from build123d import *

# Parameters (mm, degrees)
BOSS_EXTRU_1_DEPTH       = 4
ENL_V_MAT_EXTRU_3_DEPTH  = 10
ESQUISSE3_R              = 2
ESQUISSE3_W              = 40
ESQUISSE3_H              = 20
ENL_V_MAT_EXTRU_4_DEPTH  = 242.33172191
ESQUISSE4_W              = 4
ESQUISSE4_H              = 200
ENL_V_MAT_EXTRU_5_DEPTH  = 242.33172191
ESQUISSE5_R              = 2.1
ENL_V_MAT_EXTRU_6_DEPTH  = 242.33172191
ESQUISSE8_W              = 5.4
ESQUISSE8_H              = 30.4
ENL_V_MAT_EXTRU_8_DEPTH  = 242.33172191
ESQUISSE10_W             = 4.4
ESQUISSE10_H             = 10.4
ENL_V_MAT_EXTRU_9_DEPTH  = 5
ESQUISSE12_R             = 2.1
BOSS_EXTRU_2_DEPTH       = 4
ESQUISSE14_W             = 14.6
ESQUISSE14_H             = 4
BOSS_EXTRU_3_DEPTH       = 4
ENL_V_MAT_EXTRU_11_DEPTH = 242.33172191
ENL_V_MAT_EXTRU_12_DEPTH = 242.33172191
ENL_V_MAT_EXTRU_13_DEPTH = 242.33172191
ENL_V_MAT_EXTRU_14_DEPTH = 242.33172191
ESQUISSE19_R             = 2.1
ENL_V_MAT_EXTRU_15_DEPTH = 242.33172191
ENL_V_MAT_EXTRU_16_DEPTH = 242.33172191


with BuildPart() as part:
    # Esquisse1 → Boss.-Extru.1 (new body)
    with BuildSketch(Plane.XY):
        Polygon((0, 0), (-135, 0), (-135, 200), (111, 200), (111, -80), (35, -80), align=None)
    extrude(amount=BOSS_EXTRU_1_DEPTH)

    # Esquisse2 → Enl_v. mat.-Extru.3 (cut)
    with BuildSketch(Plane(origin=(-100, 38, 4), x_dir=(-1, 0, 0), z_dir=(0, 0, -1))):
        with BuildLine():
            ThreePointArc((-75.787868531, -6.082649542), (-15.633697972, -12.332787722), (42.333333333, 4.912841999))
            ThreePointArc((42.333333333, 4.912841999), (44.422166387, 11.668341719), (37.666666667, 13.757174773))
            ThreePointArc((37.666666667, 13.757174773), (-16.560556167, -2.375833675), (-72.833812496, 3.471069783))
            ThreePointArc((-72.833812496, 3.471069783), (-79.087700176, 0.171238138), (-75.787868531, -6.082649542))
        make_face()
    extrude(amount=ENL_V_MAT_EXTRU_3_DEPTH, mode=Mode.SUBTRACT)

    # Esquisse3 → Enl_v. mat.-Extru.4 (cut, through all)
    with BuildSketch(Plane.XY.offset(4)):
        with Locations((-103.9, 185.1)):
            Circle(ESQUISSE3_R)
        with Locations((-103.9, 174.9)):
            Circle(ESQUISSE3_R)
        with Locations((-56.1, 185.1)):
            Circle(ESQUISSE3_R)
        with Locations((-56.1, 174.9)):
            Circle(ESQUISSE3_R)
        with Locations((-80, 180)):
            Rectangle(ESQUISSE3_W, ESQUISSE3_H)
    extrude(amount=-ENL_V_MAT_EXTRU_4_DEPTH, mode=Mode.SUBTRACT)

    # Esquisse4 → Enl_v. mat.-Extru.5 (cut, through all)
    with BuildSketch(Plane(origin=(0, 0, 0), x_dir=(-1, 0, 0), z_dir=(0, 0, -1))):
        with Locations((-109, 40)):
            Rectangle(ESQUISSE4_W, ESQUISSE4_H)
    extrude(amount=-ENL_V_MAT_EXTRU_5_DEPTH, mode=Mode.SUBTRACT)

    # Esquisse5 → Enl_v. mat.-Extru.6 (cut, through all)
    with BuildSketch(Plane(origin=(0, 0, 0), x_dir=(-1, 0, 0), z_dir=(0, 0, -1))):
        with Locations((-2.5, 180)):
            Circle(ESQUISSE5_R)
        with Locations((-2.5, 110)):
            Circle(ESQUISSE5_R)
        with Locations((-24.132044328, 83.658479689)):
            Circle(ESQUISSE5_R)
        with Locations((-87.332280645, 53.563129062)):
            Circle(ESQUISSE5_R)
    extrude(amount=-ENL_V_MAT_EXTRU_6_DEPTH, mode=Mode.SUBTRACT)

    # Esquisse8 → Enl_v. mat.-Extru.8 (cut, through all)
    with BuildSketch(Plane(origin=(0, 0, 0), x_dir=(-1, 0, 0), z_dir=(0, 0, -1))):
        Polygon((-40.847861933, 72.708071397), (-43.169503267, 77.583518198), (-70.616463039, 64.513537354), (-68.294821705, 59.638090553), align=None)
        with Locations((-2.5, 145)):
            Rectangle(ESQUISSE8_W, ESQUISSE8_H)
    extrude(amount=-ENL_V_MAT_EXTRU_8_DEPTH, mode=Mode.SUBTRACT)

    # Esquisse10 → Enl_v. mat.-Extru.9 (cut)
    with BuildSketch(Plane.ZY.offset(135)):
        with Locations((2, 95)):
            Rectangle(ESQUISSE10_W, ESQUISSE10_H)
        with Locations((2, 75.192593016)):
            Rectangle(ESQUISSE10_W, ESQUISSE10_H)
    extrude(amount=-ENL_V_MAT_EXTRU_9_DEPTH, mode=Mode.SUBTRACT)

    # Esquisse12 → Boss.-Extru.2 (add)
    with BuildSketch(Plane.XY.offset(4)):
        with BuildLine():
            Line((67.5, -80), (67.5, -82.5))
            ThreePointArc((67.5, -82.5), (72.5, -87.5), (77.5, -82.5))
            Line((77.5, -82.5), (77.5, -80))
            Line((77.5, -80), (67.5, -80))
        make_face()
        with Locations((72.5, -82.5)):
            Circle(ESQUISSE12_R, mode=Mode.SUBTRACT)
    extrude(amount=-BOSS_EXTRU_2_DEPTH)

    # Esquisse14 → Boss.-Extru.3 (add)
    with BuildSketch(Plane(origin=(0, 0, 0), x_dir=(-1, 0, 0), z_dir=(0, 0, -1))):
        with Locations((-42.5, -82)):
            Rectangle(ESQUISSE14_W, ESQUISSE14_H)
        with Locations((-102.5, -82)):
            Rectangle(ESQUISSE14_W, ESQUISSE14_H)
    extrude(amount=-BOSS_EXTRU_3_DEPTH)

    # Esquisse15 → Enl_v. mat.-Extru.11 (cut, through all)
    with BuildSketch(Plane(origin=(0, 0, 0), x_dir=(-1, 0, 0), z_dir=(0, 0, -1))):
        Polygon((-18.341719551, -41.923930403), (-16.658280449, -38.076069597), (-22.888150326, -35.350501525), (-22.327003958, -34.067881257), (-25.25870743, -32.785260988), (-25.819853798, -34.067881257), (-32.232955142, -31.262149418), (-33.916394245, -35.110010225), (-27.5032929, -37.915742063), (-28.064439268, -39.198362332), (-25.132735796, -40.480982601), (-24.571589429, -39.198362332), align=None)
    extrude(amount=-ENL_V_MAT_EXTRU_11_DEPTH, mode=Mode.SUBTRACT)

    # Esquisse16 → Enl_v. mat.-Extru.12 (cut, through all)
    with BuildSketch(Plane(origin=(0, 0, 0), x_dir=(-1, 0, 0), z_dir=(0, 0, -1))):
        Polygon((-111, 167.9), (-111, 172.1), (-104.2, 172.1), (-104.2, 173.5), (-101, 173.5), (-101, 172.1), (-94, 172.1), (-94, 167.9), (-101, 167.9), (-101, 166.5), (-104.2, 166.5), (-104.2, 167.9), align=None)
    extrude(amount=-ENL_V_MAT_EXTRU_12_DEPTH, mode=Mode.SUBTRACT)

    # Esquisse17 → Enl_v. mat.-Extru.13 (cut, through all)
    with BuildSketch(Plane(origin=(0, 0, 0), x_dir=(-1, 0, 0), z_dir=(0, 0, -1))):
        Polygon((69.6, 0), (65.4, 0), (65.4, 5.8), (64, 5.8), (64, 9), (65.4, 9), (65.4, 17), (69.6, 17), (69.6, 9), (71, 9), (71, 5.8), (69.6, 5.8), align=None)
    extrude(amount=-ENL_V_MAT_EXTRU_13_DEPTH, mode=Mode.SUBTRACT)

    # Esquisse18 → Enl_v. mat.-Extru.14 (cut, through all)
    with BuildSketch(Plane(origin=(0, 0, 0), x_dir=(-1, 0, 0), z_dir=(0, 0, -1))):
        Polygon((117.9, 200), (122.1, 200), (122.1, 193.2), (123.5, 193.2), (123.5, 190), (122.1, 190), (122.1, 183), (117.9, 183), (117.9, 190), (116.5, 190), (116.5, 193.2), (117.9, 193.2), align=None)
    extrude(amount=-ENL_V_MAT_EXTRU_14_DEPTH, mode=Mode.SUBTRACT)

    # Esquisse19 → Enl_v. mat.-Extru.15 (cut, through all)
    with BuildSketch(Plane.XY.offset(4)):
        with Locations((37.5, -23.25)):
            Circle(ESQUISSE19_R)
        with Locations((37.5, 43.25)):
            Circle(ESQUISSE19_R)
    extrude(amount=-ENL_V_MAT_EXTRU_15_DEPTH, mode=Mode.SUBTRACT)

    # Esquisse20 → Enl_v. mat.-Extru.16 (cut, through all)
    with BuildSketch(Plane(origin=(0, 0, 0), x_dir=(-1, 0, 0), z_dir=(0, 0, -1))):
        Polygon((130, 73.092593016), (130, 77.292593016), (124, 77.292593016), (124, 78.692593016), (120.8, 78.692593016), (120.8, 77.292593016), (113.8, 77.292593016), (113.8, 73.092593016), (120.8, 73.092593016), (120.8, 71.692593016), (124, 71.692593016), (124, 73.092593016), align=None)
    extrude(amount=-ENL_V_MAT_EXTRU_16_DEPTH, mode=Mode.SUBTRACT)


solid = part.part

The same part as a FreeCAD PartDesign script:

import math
import FreeCAD as App
import Part
import Sketcher

doc = App.newDocument("Part")
body = doc.addObject("PartDesign::Body", "Body")

# Sketch on XY plane
sketch1 = body.newObject("Sketcher::SketchObject", "Sketch")
sketch1.AttachmentSupport = (doc.getObject("XY_Plane"), [""])
sketch1.MapMode = "FlatFace"
sketch1.addGeometry(Part.LineSegment(App.Vector(-135, 0, 0), App.Vector(0, 0, 0)), False)
sketch1.addGeometry(Part.LineSegment(App.Vector(0, 0, 0), App.Vector(35, -80, 0)), False)
sketch1.addGeometry(Part.LineSegment(App.Vector(35, -80, 0), App.Vector(111, -80, 0)), False)
sketch1.addGeometry(Part.LineSegment(App.Vector(111, -80, 0), App.Vector(111, 200, 0)), False)
sketch1.addGeometry(Part.LineSegment(App.Vector(111, 200, 0), App.Vector(-135, 200, 0)), False)
sketch1.addGeometry(Part.LineSegment(App.Vector(-135, 200, 0), App.Vector(-135, 0, 0)), False)
sketch1.addConstraint(Sketcher.Constraint("Coincident", 0, 2, 1, 1))
sketch1.addConstraint(Sketcher.Constraint("Coincident", 1, 2, 2, 1))
sketch1.addConstraint(Sketcher.Constraint("Coincident", 2, 2, 3, 1))
sketch1.addConstraint(Sketcher.Constraint("Coincident", 3, 2, 4, 1))
sketch1.addConstraint(Sketcher.Constraint("Coincident", 4, 2, 5, 1))
sketch1.addConstraint(Sketcher.Constraint("Coincident", 5, 2, 0, 1))
sketch1.addConstraint(Sketcher.Constraint("Horizontal", 0))
sketch1.addConstraint(Sketcher.Constraint("Horizontal", 2))
sketch1.addConstraint(Sketcher.Constraint("Vertical", 3))
sketch1.addConstraint(Sketcher.Constraint("Horizontal", 4))
sketch1.addConstraint(Sketcher.Constraint("Vertical", 5))
sketch1.addConstraint(Sketcher.Constraint("Coincident", 0, 2, -1, 1))
sketch1.addConstraint(Sketcher.Constraint("DistanceX", 0, 1, 0, 2, 135.0))
sketch1.addConstraint(Sketcher.Constraint("DistanceX", 2, 1, 2, 2, 76.0))
sketch1.addConstraint(Sketcher.Constraint("DistanceX", 4, 2, 4, 1, 246.0))
sketch1.addConstraint(Sketcher.Constraint("DistanceY", 3, 1, 3, 2, 280.0))
sketch1.addConstraint(Sketcher.Constraint("DistanceY", 5, 2, 5, 1, 200.0))
pad1 = body.newObject("PartDesign::Pad", "Pad")
pad1.Profile = sketch1
pad1.Length = 4

# Sketch on XY plane
sketch2 = body.newObject("Sketcher::SketchObject", "Sketch001")
sketch2.AttachmentSupport = (doc.getObject("XY_Plane"), [""])
sketch2.MapMode = "FlatFace"
sketch2.AttachmentOffset = App.Placement(App.Vector(0, 0, 4), App.Rotation())
sketch2.addGeometry(Part.ArcOfCircle(Part.Circle(App.Vector(-70, 180, 0), App.Vector(0, 0, 1), 155), math.radians(-118), math.radians(-73)), False)
sketch2.addGeometry(Part.ArcOfCircle(Part.Circle(App.Vector(-140, 47, 0), App.Vector(0, 0, 1), 5), math.radians(62), math.radians(242)), False)
sketch2.addGeometry(Part.ArcOfCircle(Part.Circle(App.Vector(-70, 180, 0), App.Vector(0, 0, 1), 145), math.radians(-118), math.radians(-73)), False)
sketch2.addGeometry(Part.ArcOfCircle(Part.Circle(App.Vector(-26, 37, 0), App.Vector(0, 0, 1), 5), math.radians(-73), math.radians(107)), False)
sketch2.addConstraint(Sketcher.Constraint("Tangent", 0, 1, 1, 2))
sketch2.addConstraint(Sketcher.Constraint("Tangent", 1, 1, 2, 1))
sketch2.addConstraint(Sketcher.Constraint("Tangent", 2, 2, 3, 2))
sketch2.addConstraint(Sketcher.Constraint("Tangent", 3, 1, 0, 2))
sketch2.addConstraint(Sketcher.Constraint("Coincident", 2, 3, 0, 3))
sketch2.addConstraint(Sketcher.Constraint("Radius", 0, 155.0))
sketch2.addConstraint(Sketcher.Constraint("Radius", 1, 5.0))
sketch2.addConstraint(Sketcher.Constraint("DistanceX", 0, 3, -1, 1, 70.0))
sketch2.addConstraint(Sketcher.Constraint("DistanceY", -1, 1, 0, 3, 180.0))
sketch2.addConstraint(Sketcher.Constraint("DistanceX", 1, 3, -1, 1, 140.0))
sketch2.addConstraint(Sketcher.Constraint("DistanceY", 3, 3, 1, 3, 10.640798))
pocket1 = body.newObject("PartDesign::Pocket", "Pocket")
pocket1.Profile = sketch2
pocket1.Length = 10

# Sketch on XY plane
sketch3 = body.newObject("Sketcher::SketchObject", "Sketch002")
sketch3.AttachmentSupport = (doc.getObject("XY_Plane"), [""])
sketch3.MapMode = "FlatFace"
sketch3.AttachmentOffset = App.Placement(App.Vector(0, 0, 4), App.Rotation())
sketch3.addGeometry(Part.Circle(App.Vector(-103.9, 185.1, 0), App.Vector(0, 0, 1), 2), False)
sketch3.addGeometry(Part.Circle(App.Vector(-103.9, 174.9, 0), App.Vector(0, 0, 1), 2), False)
sketch3.addGeometry(Part.Circle(App.Vector(-56.1, 185.1, 0), App.Vector(0, 0, 1), 2), False)
sketch3.addGeometry(Part.Circle(App.Vector(-56.1, 174.9, 0), App.Vector(0, 0, 1), 2), False)
sketch3.addGeometry(Part.LineSegment(App.Vector(-100, 190, 0), App.Vector(-100, 170, 0)), False)
sketch3.addGeometry(Part.LineSegment(App.Vector(-100, 170, 0), App.Vector(-60, 170, 0)), False)
sketch3.addGeometry(Part.LineSegment(App.Vector(-60, 170, 0), App.Vector(-60, 190, 0)), False)
sketch3.addGeometry(Part.LineSegment(App.Vector(-60, 190, 0), App.Vector(-100, 190, 0)), False)
sketch3.addConstraint(Sketcher.Constraint("Coincident", 4, 2, 5, 1))
sketch3.addConstraint(Sketcher.Constraint("Coincident", 5, 2, 6, 1))
sketch3.addConstraint(Sketcher.Constraint("Coincident", 6, 2, 7, 1))
sketch3.addConstraint(Sketcher.Constraint("Coincident", 7, 2, 4, 1))
sketch3.addConstraint(Sketcher.Constraint("Vertical", 4))
sketch3.addConstraint(Sketcher.Constraint("Horizontal", 5))
sketch3.addConstraint(Sketcher.Constraint("Vertical", 6))
sketch3.addConstraint(Sketcher.Constraint("Horizontal", 7))
sketch3.addConstraint(Sketcher.Constraint("Equal", 0, 1))
sketch3.addConstraint(Sketcher.Constraint("Equal", 1, 2))
sketch3.addConstraint(Sketcher.Constraint("Equal", 2, 3))
sketch3.addConstraint(Sketcher.Constraint("Horizontal", 0, 3, 2, 3))
sketch3.addConstraint(Sketcher.Constraint("Horizontal", 1, 3, 3, 3))
sketch3.addConstraint(Sketcher.Constraint("Vertical", 0, 3, 1, 3))
sketch3.addConstraint(Sketcher.Constraint("Vertical", 2, 3, 3, 3))
sketch3.addConstraint(Sketcher.Constraint("Diameter", 0, 4.0))
sketch3.addConstraint(Sketcher.Constraint("DistanceX", 5, 1, 5, 2, 40.0))
sketch3.addConstraint(Sketcher.Constraint("DistanceY", 4, 2, 4, 1, 20.0))
sketch3.addConstraint(Sketcher.Constraint("DistanceX", 4, 2, -1, 1, 100.0))
sketch3.addConstraint(Sketcher.Constraint("DistanceY", -1, 1, 4, 2, 170.0))
sketch3.addConstraint(Sketcher.Constraint("DistanceX", 0, 3, -1, 1, 103.9))
sketch3.addConstraint(Sketcher.Constraint("DistanceY", -1, 1, 0, 3, 185.1))
sketch3.addConstraint(Sketcher.Constraint("DistanceY", -1, 1, 1, 3, 174.9))
sketch3.addConstraint(Sketcher.Constraint("DistanceX", 2, 3, -1, 1, 56.1))
pocket2 = body.newObject("PartDesign::Pocket", "Pocket001")
pocket2.Profile = sketch3
pocket2.Type = "ThroughAll"

# Sketch on XY plane
sketch4 = body.newObject("Sketcher::SketchObject", "Sketch003")
sketch4.AttachmentSupport = (doc.getObject("XY_Plane"), [""])
sketch4.MapMode = "FlatFace"
sketch4.addGeometry(Part.LineSegment(App.Vector(111, 140, 0), App.Vector(111, -60, 0)), False)
sketch4.addGeometry(Part.LineSegment(App.Vector(111, -60, 0), App.Vector(107, -60, 0)), False)
sketch4.addGeometry(Part.LineSegment(App.Vector(107, -60, 0), App.Vector(107, 140, 0)), False)
sketch4.addGeometry(Part.LineSegment(App.Vector(107, 140, 0), App.Vector(111, 140, 0)), False)
sketch4.addConstraint(Sketcher.Constraint("Coincident", 0, 2, 1, 1))
sketch4.addConstraint(Sketcher.Constraint("Coincident", 1, 2, 2, 1))
sketch4.addConstraint(Sketcher.Constraint("Coincident", 2, 2, 3, 1))
sketch4.addConstraint(Sketcher.Constraint("Coincident", 3, 2, 0, 1))
sketch4.addConstraint(Sketcher.Constraint("Vertical", 0))
sketch4.addConstraint(Sketcher.Constraint("Horizontal", 1))
sketch4.addConstraint(Sketcher.Constraint("Vertical", 2))
sketch4.addConstraint(Sketcher.Constraint("Horizontal", 3))
sketch4.addConstraint(Sketcher.Constraint("DistanceX", 1, 2, 1, 1, 4.0))
sketch4.addConstraint(Sketcher.Constraint("DistanceY", 0, 2, 0, 1, 200.0))
sketch4.addConstraint(Sketcher.Constraint("DistanceX", -1, 1, 0, 2, 111.0))
sketch4.addConstraint(Sketcher.Constraint("DistanceY", 0, 2, -1, 1, 60.0))
pocket3 = body.newObject("PartDesign::Pocket", "Pocket002")
pocket3.Profile = sketch4
pocket3.Type = "ThroughAll"
pocket3.Reversed = True

# Sketch on XY plane
sketch5 = body.newObject("Sketcher::SketchObject", "Sketch004")
sketch5.AttachmentSupport = (doc.getObject("XY_Plane"), [""])
sketch5.MapMode = "FlatFace"
sketch5.addGeometry(Part.Circle(App.Vector(2.5, 180, 0), App.Vector(0, 0, 1), 2.1), False)
sketch5.addGeometry(Part.Circle(App.Vector(2.5, 110, 0), App.Vector(0, 0, 1), 2.1), False)
sketch5.addGeometry(Part.Circle(App.Vector(24.1, 83.7, 0), App.Vector(0, 0, 1), 2.1), False)
sketch5.addGeometry(Part.Circle(App.Vector(87.3, 53.6, 0), App.Vector(0, 0, 1), 2.1), False)
sketch5.addConstraint(Sketcher.Constraint("Equal", 0, 1))
sketch5.addConstraint(Sketcher.Constraint("Equal", 1, 2))
sketch5.addConstraint(Sketcher.Constraint("Equal", 2, 3))
sketch5.addConstraint(Sketcher.Constraint("Vertical", 0, 3, 1, 3))
sketch5.addConstraint(Sketcher.Constraint("Diameter", 0, 4.2))
sketch5.addConstraint(Sketcher.Constraint("DistanceY", -1, 1, 0, 3, 180.0))
sketch5.addConstraint(Sketcher.Constraint("DistanceY", -1, 1, 1, 3, 110.0))
sketch5.addConstraint(Sketcher.Constraint("DistanceX", -1, 1, 0, 3, 2.5))
sketch5.addConstraint(Sketcher.Constraint("DistanceY", -1, 1, 2, 3, 83.65848))
sketch5.addConstraint(Sketcher.Constraint("DistanceX", -1, 1, 3, 3, 87.332281))
sketch5.addConstraint(Sketcher.Constraint("DistanceY", -1, 1, 3, 3, 53.563129))
sketch5.addConstraint(Sketcher.Constraint("DistanceX", -1, 1, 2, 3, 24.132044))
pocket4 = body.newObject("PartDesign::Pocket", "Pocket003")
pocket4.Profile = sketch5
pocket4.Type = "ThroughAll"
pocket4.Reversed = True

# Sketch on XY plane
sketch6 = body.newObject("Sketcher::SketchObject", "Sketch005")
sketch6.AttachmentSupport = (doc.getObject("XY_Plane"), [""])
sketch6.MapMode = "FlatFace"
sketch6.addGeometry(Part.LineSegment(App.Vector(41, 73, 0), App.Vector(43, 78, 0)), False)
sketch6.addGeometry(Part.LineSegment(App.Vector(43, 78, 0), App.Vector(71, 65, 0)), False)
sketch6.addGeometry(Part.LineSegment(App.Vector(71, 65, 0), App.Vector(68, 60, 0)), False)
sketch6.addGeometry(Part.LineSegment(App.Vector(68, 60, 0), App.Vector(41, 73, 0)), False)
sketch6.addGeometry(Part.LineSegment(App.Vector(5, 160, 0), App.Vector(5, 130, 0)), False)
sketch6.addGeometry(Part.LineSegment(App.Vector(5, 130, 0), App.Vector(0, 130, 0)), False)
sketch6.addGeometry(Part.LineSegment(App.Vector(0, 130, 0), App.Vector(0, 160, 0)), False)
sketch6.addGeometry(Part.LineSegment(App.Vector(0, 160, 0), App.Vector(5, 160, 0)), False)
sketch6.addConstraint(Sketcher.Constraint("Coincident", 0, 2, 1, 1))
sketch6.addConstraint(Sketcher.Constraint("Coincident", 1, 2, 2, 1))
sketch6.addConstraint(Sketcher.Constraint("Coincident", 2, 2, 3, 1))
sketch6.addConstraint(Sketcher.Constraint("Coincident", 3, 2, 0, 1))
sketch6.addConstraint(Sketcher.Constraint("Coincident", 4, 2, 5, 1))
sketch6.addConstraint(Sketcher.Constraint("Coincident", 5, 2, 6, 1))
sketch6.addConstraint(Sketcher.Constraint("Coincident", 6, 2, 7, 1))
sketch6.addConstraint(Sketcher.Constraint("Coincident", 7, 2, 4, 1))
sketch6.addConstraint(Sketcher.Constraint("Vertical", 4))
sketch6.addConstraint(Sketcher.Constraint("Horizontal", 5))
sketch6.addConstraint(Sketcher.Constraint("Vertical", 6))
sketch6.addConstraint(Sketcher.Constraint("Horizontal", 7))
sketch6.addConstraint(Sketcher.Constraint("Perpendicular", 0, 1))
sketch6.addConstraint(Sketcher.Constraint("Perpendicular", 1, 2))
sketch6.addConstraint(Sketcher.Constraint("Perpendicular", 2, 3))
sketch6.addConstraint(Sketcher.Constraint("DistanceX", 5, 2, 5, 1, 5.4))
sketch6.addConstraint(Sketcher.Constraint("DistanceY", 4, 2, 4, 1, 30.4))
sketch6.addConstraint(Sketcher.Constraint("Distance", 0, 5.4))
sketch6.addConstraint(Sketcher.Constraint("Distance", 1, 30.4))
sketch6.addConstraint(Sketcher.Constraint("DistanceX", -1, 1, 4, 2, 5.2))
sketch6.addConstraint(Sketcher.Constraint("DistanceY", -1, 1, 4, 2, 129.8))
sketch6.addConstraint(Sketcher.Constraint("DistanceX", 3, 2, 1, 2, 29.768601))
sketch6.addConstraint(Sketcher.Constraint("DistanceY", -1, 1, 0, 2, 77.583518))
sketch6.addConstraint(Sketcher.Constraint("DistanceX", -1, 1, 2, 2, 68.294822))
pocket5 = body.newObject("PartDesign::Pocket", "Pocket004")
pocket5.Profile = sketch6
pocket5.Type = "ThroughAll"
pocket5.Reversed = True

# Sketch on YZ plane
sketch7 = body.newObject("Sketcher::SketchObject", "Sketch006")
sketch7.AttachmentSupport = (doc.getObject("YZ_Plane"), [""])
sketch7.MapMode = "FlatFace"
sketch7.AttachmentOffset = App.Placement(App.Vector(0, 0, -135), App.Rotation())
sketch7.addGeometry(Part.LineSegment(App.Vector(100.2, -0.2, 0), App.Vector(89.8, -0.2, 0)), False)
sketch7.addGeometry(Part.LineSegment(App.Vector(89.8, -0.2, 0), App.Vector(89.8, 4.2, 0)), False)
sketch7.addGeometry(Part.LineSegment(App.Vector(89.8, 4.2, 0), App.Vector(100.2, 4.2, 0)), False)
sketch7.addGeometry(Part.LineSegment(App.Vector(100.2, 4.2, 0), App.Vector(100.2, -0.2, 0)), False)
sketch7.addGeometry(Part.LineSegment(App.Vector(80.4, -0.2, 0), App.Vector(70, -0.2, 0)), False)
sketch7.addGeometry(Part.LineSegment(App.Vector(70, -0.2, 0), App.Vector(70, 4.2, 0)), False)
sketch7.addGeometry(Part.LineSegment(App.Vector(70, 4.2, 0), App.Vector(80.4, 4.2, 0)), False)
sketch7.addGeometry(Part.LineSegment(App.Vector(80.4, 4.2, 0), App.Vector(80.4, -0.2, 0)), False)
sketch7.addConstraint(Sketcher.Constraint("Coincident", 0, 2, 1, 1))
sketch7.addConstraint(Sketcher.Constraint("Coincident", 1, 2, 2, 1))
sketch7.addConstraint(Sketcher.Constraint("Coincident", 2, 2, 3, 1))
sketch7.addConstraint(Sketcher.Constraint("Coincident", 3, 2, 0, 1))
sketch7.addConstraint(Sketcher.Constraint("Coincident", 4, 2, 5, 1))
sketch7.addConstraint(Sketcher.Constraint("Coincident", 5, 2, 6, 1))
sketch7.addConstraint(Sketcher.Constraint("Coincident", 6, 2, 7, 1))
sketch7.addConstraint(Sketcher.Constraint("Coincident", 7, 2, 4, 1))
sketch7.addConstraint(Sketcher.Constraint("Horizontal", 0))
sketch7.addConstraint(Sketcher.Constraint("Vertical", 1))
sketch7.addConstraint(Sketcher.Constraint("Horizontal", 2))
sketch7.addConstraint(Sketcher.Constraint("Vertical", 3))
sketch7.addConstraint(Sketcher.Constraint("Horizontal", 4))
sketch7.addConstraint(Sketcher.Constraint("Vertical", 5))
sketch7.addConstraint(Sketcher.Constraint("Horizontal", 6))
sketch7.addConstraint(Sketcher.Constraint("Vertical", 7))
sketch7.addConstraint(Sketcher.Constraint("Horizontal", 3, 2, 4, 2))
sketch7.addConstraint(Sketcher.Constraint("Horizontal", 2, 2, 5, 2))
sketch7.addConstraint(Sketcher.Constraint("Equal", 2, 4))
sketch7.addConstraint(Sketcher.Constraint("DistanceX", 0, 2, 0, 1, 10.4))
sketch7.addConstraint(Sketcher.Constraint("DistanceY", 1, 1, 1, 2, 4.4))
sketch7.addConstraint(Sketcher.Constraint("DistanceX", -1, 1, 0, 2, 89.8))
sketch7.addConstraint(Sketcher.Constraint("DistanceY", 0, 2, -1, 1, 0.2))
sketch7.addConstraint(Sketcher.Constraint("DistanceX", -1, 1, 4, 2, 69.992593))
pocket6 = body.newObject("PartDesign::Pocket", "Pocket005")
pocket6.Profile = sketch7
pocket6.Length = 5
pocket6.Reversed = True

# Sketch on XY plane
sketch8 = body.newObject("Sketcher::SketchObject", "Sketch007")
sketch8.AttachmentSupport = (doc.getObject("XY_Plane"), [""])
sketch8.MapMode = "FlatFace"
sketch8.AttachmentOffset = App.Placement(App.Vector(0, 0, 4), App.Rotation())
sketch8.addGeometry(Part.LineSegment(App.Vector(67.5, -80, 0), App.Vector(67.5, -82.5, 0)), False)
sketch8.addGeometry(Part.ArcOfCircle(Part.Circle(App.Vector(72.5, -82.5, 0), App.Vector(0, 0, 1), 5), math.radians(180), math.radians(360)), False)
sketch8.addGeometry(Part.LineSegment(App.Vector(77.5, -82.5, 0), App.Vector(77.5, -80, 0)), False)
sketch8.addGeometry(Part.LineSegment(App.Vector(77.5, -80, 0), App.Vector(67.5, -80, 0)), False)
sketch8.addGeometry(Part.Circle(App.Vector(72.5, -82.5, 0), App.Vector(0, 0, 1), 2.1), False)
sketch8.addConstraint(Sketcher.Constraint("Tangent", 0, 2, 1, 1))
sketch8.addConstraint(Sketcher.Constraint("Tangent", 1, 2, 2, 1))
sketch8.addConstraint(Sketcher.Constraint("Coincident", 2, 2, 3, 1))
sketch8.addConstraint(Sketcher.Constraint("Coincident", 3, 2, 0, 1))
sketch8.addConstraint(Sketcher.Constraint("Vertical", 0))
sketch8.addConstraint(Sketcher.Constraint("Vertical", 2))
sketch8.addConstraint(Sketcher.Constraint("Horizontal", 3))
sketch8.addConstraint(Sketcher.Constraint("Coincident", 4, 3, 1, 3))
sketch8.addConstraint(Sketcher.Constraint("Radius", 1, 5.0))
sketch8.addConstraint(Sketcher.Constraint("Diameter", 4, 4.2))
sketch8.addConstraint(Sketcher.Constraint("DistanceY", 0, 2, 0, 1, 2.5))
sketch8.addConstraint(Sketcher.Constraint("DistanceY", 2, 2, -1, 1, 80.0))
sketch8.addConstraint(Sketcher.Constraint("DistanceX", -1, 1, 1, 3, 72.5))
pad2 = body.newObject("PartDesign::Pad", "Pad001")
pad2.Profile = sketch8
pad2.Length = 4
pad2.Reversed = True

# Sketch on XY plane
sketch9 = body.newObject("Sketcher::SketchObject", "Sketch008")
sketch9.AttachmentSupport = (doc.getObject("XY_Plane"), [""])
sketch9.MapMode = "FlatFace"
sketch9.addGeometry(Part.LineSegment(App.Vector(49.8, -80, 0), App.Vector(49.8, -84, 0)), False)
sketch9.addGeometry(Part.LineSegment(App.Vector(49.8, -84, 0), App.Vector(35.2, -84, 0)), False)
sketch9.addGeometry(Part.LineSegment(App.Vector(35.2, -84, 0), App.Vector(35.2, -80, 0)), False)
sketch9.addGeometry(Part.LineSegment(App.Vector(35.2, -80, 0), App.Vector(49.8, -80, 0)), False)
sketch9.addGeometry(Part.LineSegment(App.Vector(109.8, -80, 0), App.Vector(109.8, -84, 0)), False)
sketch9.addGeometry(Part.LineSegment(App.Vector(109.8, -84, 0), App.Vector(95.2, -84, 0)), False)
sketch9.addGeometry(Part.LineSegment(App.Vector(95.2, -84, 0), App.Vector(95.2, -80, 0)), False)
sketch9.addGeometry(Part.LineSegment(App.Vector(95.2, -80, 0), App.Vector(109.8, -80, 0)), False)
sketch9.addConstraint(Sketcher.Constraint("Coincident", 0, 2, 1, 1))
sketch9.addConstraint(Sketcher.Constraint("Coincident", 1, 2, 2, 1))
sketch9.addConstraint(Sketcher.Constraint("Coincident", 2, 2, 3, 1))
sketch9.addConstraint(Sketcher.Constraint("Coincident", 3, 2, 0, 1))
sketch9.addConstraint(Sketcher.Constraint("Coincident", 4, 2, 5, 1))
sketch9.addConstraint(Sketcher.Constraint("Coincident", 5, 2, 6, 1))
sketch9.addConstraint(Sketcher.Constraint("Coincident", 6, 2, 7, 1))
sketch9.addConstraint(Sketcher.Constraint("Coincident", 7, 2, 4, 1))
sketch9.addConstraint(Sketcher.Constraint("Vertical", 0))
sketch9.addConstraint(Sketcher.Constraint("Horizontal", 1))
sketch9.addConstraint(Sketcher.Constraint("Vertical", 2))
sketch9.addConstraint(Sketcher.Constraint("Horizontal", 3))
sketch9.addConstraint(Sketcher.Constraint("Vertical", 4))
sketch9.addConstraint(Sketcher.Constraint("Horizontal", 5))
sketch9.addConstraint(Sketcher.Constraint("Vertical", 6))
sketch9.addConstraint(Sketcher.Constraint("Horizontal", 7))
sketch9.addConstraint(Sketcher.Constraint("Horizontal", 1, 2, 4, 2))
sketch9.addConstraint(Sketcher.Constraint("Horizontal", 3, 2, 6, 2))
sketch9.addConstraint(Sketcher.Constraint("Equal", 3, 5))
sketch9.addConstraint(Sketcher.Constraint("DistanceY", 0, 2, 0, 1, 4.0))
sketch9.addConstraint(Sketcher.Constraint("DistanceX", 1, 2, 1, 1, 14.6))
sketch9.addConstraint(Sketcher.Constraint("DistanceY", 0, 2, -1, 1, 84.0))
sketch9.addConstraint(Sketcher.Constraint("DistanceX", 0, 2, 4, 2, 60.0))
sketch9.addConstraint(Sketcher.Constraint("DistanceX", -1, 1, 0, 2, 49.8))
pad3 = body.newObject("PartDesign::Pad", "Pad002")
pad3.Profile = sketch9
pad3.Length = 4

# Sketch on XY plane
sketch10 = body.newObject("Sketcher::SketchObject", "Sketch009")
sketch10.AttachmentSupport = (doc.getObject("XY_Plane"), [""])
sketch10.MapMode = "FlatFace"
sketch10.addGeometry(Part.LineSegment(App.Vector(18.3, -41.9, 0), App.Vector(16.7, -38.1, 0)), False)
sketch10.addGeometry(Part.LineSegment(App.Vector(16.7, -38.1, 0), App.Vector(22.9, -35.4, 0)), False)
sketch10.addGeometry(Part.LineSegment(App.Vector(22.9, -35.4, 0), App.Vector(22.3, -34.1, 0)), False)
sketch10.addGeometry(Part.LineSegment(App.Vector(22.3, -34.1, 0), App.Vector(25.3, -32.8, 0)), False)
sketch10.addGeometry(Part.LineSegment(App.Vector(25.3, -32.8, 0), App.Vector(25.8, -34.1, 0)), False)
sketch10.addGeometry(Part.LineSegment(App.Vector(25.8, -34.1, 0), App.Vector(32.2, -31.3, 0)), False)
sketch10.addGeometry(Part.LineSegment(App.Vector(32.2, -31.3, 0), App.Vector(33.9, -35.1, 0)), False)
sketch10.addGeometry(Part.LineSegment(App.Vector(33.9, -35.1, 0), App.Vector(27.5, -37.9, 0)), False)
sketch10.addGeometry(Part.LineSegment(App.Vector(27.5, -37.9, 0), App.Vector(28.1, -39.2, 0)), False)
sketch10.addGeometry(Part.LineSegment(App.Vector(28.1, -39.2, 0), App.Vector(25.1, -40.5, 0)), False)
sketch10.addGeometry(Part.LineSegment(App.Vector(25.1, -40.5, 0), App.Vector(24.6, -39.2, 0)), False)
sketch10.addGeometry(Part.LineSegment(App.Vector(24.6, -39.2, 0), App.Vector(18.3, -41.9, 0)), False)
sketch10.addConstraint(Sketcher.Constraint("Coincident", 0, 2, 1, 1))
sketch10.addConstraint(Sketcher.Constraint("Coincident", 1, 2, 2, 1))
sketch10.addConstraint(Sketcher.Constraint("Coincident", 2, 2, 3, 1))
sketch10.addConstraint(Sketcher.Constraint("Coincident", 3, 2, 4, 1))
sketch10.addConstraint(Sketcher.Constraint("Coincident", 4, 2, 5, 1))
sketch10.addConstraint(Sketcher.Constraint("Coincident", 5, 2, 6, 1))
sketch10.addConstraint(Sketcher.Constraint("Coincident", 6, 2, 7, 1))
sketch10.addConstraint(Sketcher.Constraint("Coincident", 7, 2, 8, 1))
sketch10.addConstraint(Sketcher.Constraint("Coincident", 8, 2, 9, 1))
sketch10.addConstraint(Sketcher.Constraint("Coincident", 9, 2, 10, 1))
sketch10.addConstraint(Sketcher.Constraint("Coincident", 10, 2, 11, 1))
sketch10.addConstraint(Sketcher.Constraint("Coincident", 11, 2, 0, 1))
sketch10.addConstraint(Sketcher.Constraint("Perpendicular", 0, 1))
sketch10.addConstraint(Sketcher.Constraint("Perpendicular", 1, 2))
sketch10.addConstraint(Sketcher.Constraint("Perpendicular", 2, 3))
sketch10.addConstraint(Sketcher.Constraint("Perpendicular", 3, 4))
sketch10.addConstraint(Sketcher.Constraint("Perpendicular", 4, 5))
sketch10.addConstraint(Sketcher.Constraint("Perpendicular", 5, 6))
sketch10.addConstraint(Sketcher.Constraint("Perpendicular", 6, 7))
sketch10.addConstraint(Sketcher.Constraint("Perpendicular", 7, 8))
sketch10.addConstraint(Sketcher.Constraint("Perpendicular", 8, 9))
sketch10.addConstraint(Sketcher.Constraint("Perpendicular", 9, 10))
sketch10.addConstraint(Sketcher.Constraint("Perpendicular", 10, 11))
sketch10.addConstraint(Sketcher.Constraint("Horizontal", 2, 2, 4, 2))
sketch10.addConstraint(Sketcher.Constraint("Horizontal", 8, 2, 10, 2))
sketch10.addConstraint(Sketcher.Constraint("Equal", 2, 4))
sketch10.addConstraint(Sketcher.Constraint("Equal", 0, 6))
sketch10.addConstraint(Sketcher.Constraint("Equal", 5, 7))
sketch10.addConstraint(Sketcher.Constraint("Equal", 4, 8))
sketch10.addConstraint(Sketcher.Constraint("Distance", 5, 7.0))
sketch10.addConstraint(Sketcher.Constraint("Distance", 0, 4.2))
sketch10.addConstraint(Sketcher.Constraint("Distance", 1, 6.8))
sketch10.addConstraint(Sketcher.Constraint("Distance", 2, 1.4))
sketch10.addConstraint(Sketcher.Constraint("Distance", 3, 3.2))
sketch10.addConstraint(Sketcher.Constraint("DistanceY", 1, 2, -1, 1, 35.350502))
sketch10.addConstraint(Sketcher.Constraint("DistanceX", -1, 1, 0, 2, 16.65828))
pocket7 = body.newObject("PartDesign::Pocket", "Pocket006")
pocket7.Profile = sketch10
pocket7.Type = "ThroughAll"
pocket7.Reversed = True

# Sketch on XY plane
sketch11 = body.newObject("Sketcher::SketchObject", "Sketch010")
sketch11.AttachmentSupport = (doc.getObject("XY_Plane"), [""])
sketch11.MapMode = "FlatFace"
sketch11.addGeometry(Part.LineSegment(App.Vector(111, 172.1, 0), App.Vector(111, 167.9, 0)), False)
sketch11.addGeometry(Part.LineSegment(App.Vector(111, 167.9, 0), App.Vector(104.2, 167.9, 0)), False)
sketch11.addGeometry(Part.LineSegment(App.Vector(104.2, 167.9, 0), App.Vector(104.2, 166.5, 0)), False)
sketch11.addGeometry(Part.LineSegment(App.Vector(104.2, 166.5, 0), App.Vector(101, 166.5, 0)), False)
sketch11.addGeometry(Part.LineSegment(App.Vector(101, 166.5, 0), App.Vector(101, 167.9, 0)), False)
sketch11.addGeometry(Part.LineSegment(App.Vector(101, 167.9, 0), App.Vector(94, 167.9, 0)), False)
sketch11.addGeometry(Part.LineSegment(App.Vector(94, 167.9, 0), App.Vector(94, 172.1, 0)), False)
sketch11.addGeometry(Part.LineSegment(App.Vector(94, 172.1, 0), App.Vector(101, 172.1, 0)), False)
sketch11.addGeometry(Part.LineSegment(App.Vector(101, 172.1, 0), App.Vector(101, 173.5, 0)), False)
sketch11.addGeometry(Part.LineSegment(App.Vector(101, 173.5, 0), App.Vector(104.2, 173.5, 0)), False)
sketch11.addGeometry(Part.LineSegment(App.Vector(104.2, 173.5, 0), App.Vector(104.2, 172.1, 0)), False)
sketch11.addGeometry(Part.LineSegment(App.Vector(104.2, 172.1, 0), App.Vector(111, 172.1, 0)), False)
sketch11.addConstraint(Sketcher.Constraint("Coincident", 0, 2, 1, 1))
sketch11.addConstraint(Sketcher.Constraint("Coincident", 1, 2, 2, 1))
sketch11.addConstraint(Sketcher.Constraint("Coincident", 2, 2, 3, 1))
sketch11.addConstraint(Sketcher.Constraint("Coincident", 3, 2, 4, 1))
sketch11.addConstraint(Sketcher.Constraint("Coincident", 4, 2, 5, 1))
sketch11.addConstraint(Sketcher.Constraint("Coincident", 5, 2, 6, 1))
sketch11.addConstraint(Sketcher.Constraint("Coincident", 6, 2, 7, 1))
sketch11.addConstraint(Sketcher.Constraint("Coincident", 7, 2, 8, 1))
sketch11.addConstraint(Sketcher.Constraint("Coincident", 8, 2, 9, 1))
sketch11.addConstraint(Sketcher.Constraint("Coincident", 9, 2, 10, 1))
sketch11.addConstraint(Sketcher.Constraint("Coincident", 10, 2, 11, 1))
sketch11.addConstraint(Sketcher.Constraint("Coincident", 11, 2, 0, 1))
sketch11.addConstraint(Sketcher.Constraint("Vertical", 0))
sketch11.addConstraint(Sketcher.Constraint("Horizontal", 1))
sketch11.addConstraint(Sketcher.Constraint("Vertical", 2))
sketch11.addConstraint(Sketcher.Constraint("Horizontal", 3))
sketch11.addConstraint(Sketcher.Constraint("Vertical", 4))
sketch11.addConstraint(Sketcher.Constraint("Horizontal", 5))
sketch11.addConstraint(Sketcher.Constraint("Vertical", 6))
sketch11.addConstraint(Sketcher.Constraint("Horizontal", 7))
sketch11.addConstraint(Sketcher.Constraint("Vertical", 8))
sketch11.addConstraint(Sketcher.Constraint("Horizontal", 9))
sketch11.addConstraint(Sketcher.Constraint("Vertical", 10))
sketch11.addConstraint(Sketcher.Constraint("Horizontal", 11))
sketch11.addConstraint(Sketcher.Constraint("Horizontal", 1, 2, 4, 2))
sketch11.addConstraint(Sketcher.Constraint("Horizontal", 7, 2, 10, 2))
sketch11.addConstraint(Sketcher.Constraint("Vertical", 4, 2, 7, 2))
sketch11.addConstraint(Sketcher.Constraint("Vertical", 2, 2, 9, 2))
sketch11.addConstraint(Sketcher.Constraint("Equal", 4, 8))
sketch11.addConstraint(Sketcher.Constraint("DistanceX", 5, 2, 5, 1, 7.0))
sketch11.addConstraint(Sketcher.Constraint("DistanceX", 1, 2, 1, 1, 6.8))
sketch11.addConstraint(Sketcher.Constraint("DistanceX", 3, 2, 3, 1, 3.2))
sketch11.addConstraint(Sketcher.Constraint("DistanceY", 0, 2, 0, 1, 4.2))
sketch11.addConstraint(Sketcher.Constraint("DistanceY", 2, 2, 2, 1, 1.4))
sketch11.addConstraint(Sketcher.Constraint("DistanceX", -1, 1, 0, 2, 111.0))
sketch11.addConstraint(Sketcher.Constraint("DistanceY", -1, 1, 0, 2, 167.9))
pocket8 = body.newObject("PartDesign::Pocket", "Pocket007")
pocket8.Profile = sketch11
pocket8.Type = "ThroughAll"
pocket8.Reversed = True

# Sketch on XY plane
sketch12 = body.newObject("Sketcher::SketchObject", "Sketch011")
sketch12.AttachmentSupport = (doc.getObject("XY_Plane"), [""])
sketch12.MapMode = "FlatFace"
sketch12.addGeometry(Part.LineSegment(App.Vector(-65.4, 0, 0), App.Vector(-69.6, 0, 0)), False)
sketch12.addGeometry(Part.LineSegment(App.Vector(-69.6, 0, 0), App.Vector(-69.6, 5.8, 0)), False)
sketch12.addGeometry(Part.LineSegment(App.Vector(-69.6, 5.8, 0), App.Vector(-71, 5.8, 0)), False)
sketch12.addGeometry(Part.LineSegment(App.Vector(-71, 5.8, 0), App.Vector(-71, 9, 0)), False)
sketch12.addGeometry(Part.LineSegment(App.Vector(-71, 9, 0), App.Vector(-69.6, 9, 0)), False)
sketch12.addGeometry(Part.LineSegment(App.Vector(-69.6, 9, 0), App.Vector(-69.6, 17, 0)), False)
sketch12.addGeometry(Part.LineSegment(App.Vector(-69.6, 17, 0), App.Vector(-65.4, 17, 0)), False)
sketch12.addGeometry(Part.LineSegment(App.Vector(-65.4, 17, 0), App.Vector(-65.4, 9, 0)), False)
sketch12.addGeometry(Part.LineSegment(App.Vector(-65.4, 9, 0), App.Vector(-64, 9, 0)), False)
sketch12.addGeometry(Part.LineSegment(App.Vector(-64, 9, 0), App.Vector(-64, 5.8, 0)), False)
sketch12.addGeometry(Part.LineSegment(App.Vector(-64, 5.8, 0), App.Vector(-65.4, 5.8, 0)), False)
sketch12.addGeometry(Part.LineSegment(App.Vector(-65.4, 5.8, 0), App.Vector(-65.4, 0, 0)), False)
sketch12.addConstraint(Sketcher.Constraint("Coincident", 0, 2, 1, 1))
sketch12.addConstraint(Sketcher.Constraint("Coincident", 1, 2, 2, 1))
sketch12.addConstraint(Sketcher.Constraint("Coincident", 2, 2, 3, 1))
sketch12.addConstraint(Sketcher.Constraint("Coincident", 3, 2, 4, 1))
sketch12.addConstraint(Sketcher.Constraint("Coincident", 4, 2, 5, 1))
sketch12.addConstraint(Sketcher.Constraint("Coincident", 5, 2, 6, 1))
sketch12.addConstraint(Sketcher.Constraint("Coincident", 6, 2, 7, 1))
sketch12.addConstraint(Sketcher.Constraint("Coincident", 7, 2, 8, 1))
sketch12.addConstraint(Sketcher.Constraint("Coincident", 8, 2, 9, 1))
sketch12.addConstraint(Sketcher.Constraint("Coincident", 9, 2, 10, 1))
sketch12.addConstraint(Sketcher.Constraint("Coincident", 10, 2, 11, 1))
sketch12.addConstraint(Sketcher.Constraint("Coincident", 11, 2, 0, 1))
sketch12.addConstraint(Sketcher.Constraint("Horizontal", 0))
sketch12.addConstraint(Sketcher.Constraint("Vertical", 1))
sketch12.addConstraint(Sketcher.Constraint("Horizontal", 2))
sketch12.addConstraint(Sketcher.Constraint("Vertical", 3))
sketch12.addConstraint(Sketcher.Constraint("Horizontal", 4))
sketch12.addConstraint(Sketcher.Constraint("Vertical", 5))
sketch12.addConstraint(Sketcher.Constraint("Horizontal", 6))
sketch12.addConstraint(Sketcher.Constraint("Vertical", 7))
sketch12.addConstraint(Sketcher.Constraint("Horizontal", 8))
sketch12.addConstraint(Sketcher.Constraint("Vertical", 9))
sketch12.addConstraint(Sketcher.Constraint("Horizontal", 10))
sketch12.addConstraint(Sketcher.Constraint("Vertical", 11))
sketch12.addConstraint(Sketcher.Constraint("PointOnObject", 0, 2, -1))
sketch12.addConstraint(Sketcher.Constraint("Horizontal", 4, 2, 7, 2))
sketch12.addConstraint(Sketcher.Constraint("Horizontal", 2, 2, 9, 2))
sketch12.addConstraint(Sketcher.Constraint("Vertical", 1, 2, 4, 2))
sketch12.addConstraint(Sketcher.Constraint("Vertical", 7, 2, 10, 2))
sketch12.addConstraint(Sketcher.Constraint("Equal", 4, 8))
sketch12.addConstraint(Sketcher.Constraint("DistanceY", 5, 1, 5, 2, 8.0))
sketch12.addConstraint(Sketcher.Constraint("DistanceX", 0, 2, 0, 1, 4.2))
sketch12.addConstraint(Sketcher.Constraint("DistanceX", 2, 2, 2, 1, 1.4))
sketch12.addConstraint(Sketcher.Constraint("DistanceY", 1, 1, 1, 2, 5.8))
sketch12.addConstraint(Sketcher.Constraint("DistanceY", 3, 1, 3, 2, 3.2))
sketch12.addConstraint(Sketcher.Constraint("DistanceX", 2, 2, -1, 1, 71.0))
pocket9 = body.newObject("PartDesign::Pocket", "Pocket008")
pocket9.Profile = sketch12
pocket9.Type = "ThroughAll"
pocket9.Reversed = True

# Sketch on XY plane
sketch13 = body.newObject("Sketcher::SketchObject", "Sketch012")
sketch13.AttachmentSupport = (doc.getObject("XY_Plane"), [""])
sketch13.MapMode = "FlatFace"
sketch13.addGeometry(Part.LineSegment(App.Vector(-122.1, 200, 0), App.Vector(-117.9, 200, 0)), False)
sketch13.addGeometry(Part.LineSegment(App.Vector(-117.9, 200, 0), App.Vector(-117.9, 193.2, 0)), False)
sketch13.addGeometry(Part.LineSegment(App.Vector(-117.9, 193.2, 0), App.Vector(-116.5, 193.2, 0)), False)
sketch13.addGeometry(Part.LineSegment(App.Vector(-116.5, 193.2, 0), App.Vector(-116.5, 190, 0)), False)
sketch13.addGeometry(Part.LineSegment(App.Vector(-116.5, 190, 0), App.Vector(-117.9, 190, 0)), False)
sketch13.addGeometry(Part.LineSegment(App.Vector(-117.9, 190, 0), App.Vector(-117.9, 183, 0)), False)
sketch13.addGeometry(Part.LineSegment(App.Vector(-117.9, 183, 0), App.Vector(-122.1, 183, 0)), False)
sketch13.addGeometry(Part.LineSegment(App.Vector(-122.1, 183, 0), App.Vector(-122.1, 190, 0)), False)
sketch13.addGeometry(Part.LineSegment(App.Vector(-122.1, 190, 0), App.Vector(-123.5, 190, 0)), False)
sketch13.addGeometry(Part.LineSegment(App.Vector(-123.5, 190, 0), App.Vector(-123.5, 193.2, 0)), False)
sketch13.addGeometry(Part.LineSegment(App.Vector(-123.5, 193.2, 0), App.Vector(-122.1, 193.2, 0)), False)
sketch13.addGeometry(Part.LineSegment(App.Vector(-122.1, 193.2, 0), App.Vector(-122.1, 200, 0)), False)
sketch13.addConstraint(Sketcher.Constraint("Coincident", 0, 2, 1, 1))
sketch13.addConstraint(Sketcher.Constraint("Coincident", 1, 2, 2, 1))
sketch13.addConstraint(Sketcher.Constraint("Coincident", 2, 2, 3, 1))
sketch13.addConstraint(Sketcher.Constraint("Coincident", 3, 2, 4, 1))
sketch13.addConstraint(Sketcher.Constraint("Coincident", 4, 2, 5, 1))
sketch13.addConstraint(Sketcher.Constraint("Coincident", 5, 2, 6, 1))
sketch13.addConstraint(Sketcher.Constraint("Coincident", 6, 2, 7, 1))
sketch13.addConstraint(Sketcher.Constraint("Coincident", 7, 2, 8, 1))
sketch13.addConstraint(Sketcher.Constraint("Coincident", 8, 2, 9, 1))
sketch13.addConstraint(Sketcher.Constraint("Coincident", 9, 2, 10, 1))
sketch13.addConstraint(Sketcher.Constraint("Coincident", 10, 2, 11, 1))
sketch13.addConstraint(Sketcher.Constraint("Coincident", 11, 2, 0, 1))
sketch13.addConstraint(Sketcher.Constraint("Horizontal", 0))
sketch13.addConstraint(Sketcher.Constraint("Vertical", 1))
sketch13.addConstraint(Sketcher.Constraint("Horizontal", 2))
sketch13.addConstraint(Sketcher.Constraint("Vertical", 3))
sketch13.addConstraint(Sketcher.Constraint("Horizontal", 4))
sketch13.addConstraint(Sketcher.Constraint("Vertical", 5))
sketch13.addConstraint(Sketcher.Constraint("Horizontal", 6))
sketch13.addConstraint(Sketcher.Constraint("Vertical", 7))
sketch13.addConstraint(Sketcher.Constraint("Horizontal", 8))
sketch13.addConstraint(Sketcher.Constraint("Vertical", 9))
sketch13.addConstraint(Sketcher.Constraint("Horizontal", 10))
sketch13.addConstraint(Sketcher.Constraint("Vertical", 11))
sketch13.addConstraint(Sketcher.Constraint("Horizontal", 4, 2, 7, 2))
sketch13.addConstraint(Sketcher.Constraint("Horizontal", 2, 2, 9, 2))
sketch13.addConstraint(Sketcher.Constraint("Vertical", 1, 2, 4, 2))
sketch13.addConstraint(Sketcher.Constraint("Vertical", 7, 2, 10, 2))
sketch13.addConstraint(Sketcher.Constraint("Equal", 4, 8))
sketch13.addConstraint(Sketcher.Constraint("DistanceY", 5, 2, 5, 1, 7.0))
sketch13.addConstraint(Sketcher.Constraint("DistanceX", 0, 1, 0, 2, 4.2))
sketch13.addConstraint(Sketcher.Constraint("DistanceX", 2, 1, 2, 2, 1.4))
sketch13.addConstraint(Sketcher.Constraint("DistanceY", 1, 2, 1, 1, 6.8))
sketch13.addConstraint(Sketcher.Constraint("DistanceY", 3, 2, 3, 1, 3.2))
sketch13.addConstraint(Sketcher.Constraint("DistanceY", -1, 1, 0, 2, 200.0))
sketch13.addConstraint(Sketcher.Constraint("DistanceX", 0, 2, -1, 1, 117.9))
pocket10 = body.newObject("PartDesign::Pocket", "Pocket009")
pocket10.Profile = sketch13
pocket10.Type = "ThroughAll"
pocket10.Reversed = True

# Sketch on XY plane
sketch14 = body.newObject("Sketcher::SketchObject", "Sketch013")
sketch14.AttachmentSupport = (doc.getObject("XY_Plane"), [""])
sketch14.MapMode = "FlatFace"
sketch14.AttachmentOffset = App.Placement(App.Vector(0, 0, 4), App.Rotation())
sketch14.addGeometry(Part.Circle(App.Vector(37.5, -23.2, 0), App.Vector(0, 0, 1), 2.1), False)
sketch14.addGeometry(Part.Circle(App.Vector(37.5, 43.2, 0), App.Vector(0, 0, 1), 2.1), False)
sketch14.addConstraint(Sketcher.Constraint("Equal", 0, 1))
sketch14.addConstraint(Sketcher.Constraint("Vertical", 0, 3, 1, 3))
sketch14.addConstraint(Sketcher.Constraint("Diameter", 0, 4.2))
sketch14.addConstraint(Sketcher.Constraint("DistanceX", -1, 1, 0, 3, 37.5))
sketch14.addConstraint(Sketcher.Constraint("DistanceY", 0, 3, 1, 3, 66.5))
sketch14.addConstraint(Sketcher.Constraint("DistanceY", 0, 3, -1, 1, 23.25))
pocket11 = body.newObject("PartDesign::Pocket", "Pocket010")
pocket11.Profile = sketch14
pocket11.Type = "ThroughAll"

# Sketch on XY plane
sketch15 = body.newObject("Sketcher::SketchObject", "Sketch014")
sketch15.AttachmentSupport = (doc.getObject("XY_Plane"), [""])
sketch15.MapMode = "FlatFace"
sketch15.addGeometry(Part.LineSegment(App.Vector(-130, 73.1, 0), App.Vector(-130, 77.3, 0)), False)
sketch15.addGeometry(Part.LineSegment(App.Vector(-130, 77.3, 0), App.Vector(-124, 77.3, 0)), False)
sketch15.addGeometry(Part.LineSegment(App.Vector(-124, 77.3, 0), App.Vector(-124, 78.7, 0)), False)
sketch15.addGeometry(Part.LineSegment(App.Vector(-124, 78.7, 0), App.Vector(-120.8, 78.7, 0)), False)
sketch15.addGeometry(Part.LineSegment(App.Vector(-120.8, 78.7, 0), App.Vector(-120.8, 77.3, 0)), False)
sketch15.addGeometry(Part.LineSegment(App.Vector(-120.8, 77.3, 0), App.Vector(-113.8, 77.3, 0)), False)
sketch15.addGeometry(Part.LineSegment(App.Vector(-113.8, 77.3, 0), App.Vector(-113.8, 73.1, 0)), False)
sketch15.addGeometry(Part.LineSegment(App.Vector(-113.8, 73.1, 0), App.Vector(-120.8, 73.1, 0)), False)
sketch15.addGeometry(Part.LineSegment(App.Vector(-120.8, 73.1, 0), App.Vector(-120.8, 71.7, 0)), False)
sketch15.addGeometry(Part.LineSegment(App.Vector(-120.8, 71.7, 0), App.Vector(-124, 71.7, 0)), False)
sketch15.addGeometry(Part.LineSegment(App.Vector(-124, 71.7, 0), App.Vector(-124, 73.1, 0)), False)
sketch15.addGeometry(Part.LineSegment(App.Vector(-124, 73.1, 0), App.Vector(-130, 73.1, 0)), False)
sketch15.addConstraint(Sketcher.Constraint("Coincident", 0, 2, 1, 1))
sketch15.addConstraint(Sketcher.Constraint("Coincident", 1, 2, 2, 1))
sketch15.addConstraint(Sketcher.Constraint("Coincident", 2, 2, 3, 1))
sketch15.addConstraint(Sketcher.Constraint("Coincident", 3, 2, 4, 1))
sketch15.addConstraint(Sketcher.Constraint("Coincident", 4, 2, 5, 1))
sketch15.addConstraint(Sketcher.Constraint("Coincident", 5, 2, 6, 1))
sketch15.addConstraint(Sketcher.Constraint("Coincident", 6, 2, 7, 1))
sketch15.addConstraint(Sketcher.Constraint("Coincident", 7, 2, 8, 1))
sketch15.addConstraint(Sketcher.Constraint("Coincident", 8, 2, 9, 1))
sketch15.addConstraint(Sketcher.Constraint("Coincident", 9, 2, 10, 1))
sketch15.addConstraint(Sketcher.Constraint("Coincident", 10, 2, 11, 1))
sketch15.addConstraint(Sketcher.Constraint("Coincident", 11, 2, 0, 1))
sketch15.addConstraint(Sketcher.Constraint("Vertical", 0))
sketch15.addConstraint(Sketcher.Constraint("Horizontal", 1))
sketch15.addConstraint(Sketcher.Constraint("Vertical", 2))
sketch15.addConstraint(Sketcher.Constraint("Horizontal", 3))
sketch15.addConstraint(Sketcher.Constraint("Vertical", 4))
sketch15.addConstraint(Sketcher.Constraint("Horizontal", 5))
sketch15.addConstraint(Sketcher.Constraint("Vertical", 6))
sketch15.addConstraint(Sketcher.Constraint("Horizontal", 7))
sketch15.addConstraint(Sketcher.Constraint("Vertical", 8))
sketch15.addConstraint(Sketcher.Constraint("Horizontal", 9))
sketch15.addConstraint(Sketcher.Constraint("Vertical", 10))
sketch15.addConstraint(Sketcher.Constraint("Horizontal", 11))
sketch15.addConstraint(Sketcher.Constraint("Horizontal", 1, 2, 4, 2))
sketch15.addConstraint(Sketcher.Constraint("Horizontal", 7, 2, 10, 2))
sketch15.addConstraint(Sketcher.Constraint("Vertical", 4, 2, 7, 2))
sketch15.addConstraint(Sketcher.Constraint("Vertical", 2, 2, 9, 2))
sketch15.addConstraint(Sketcher.Constraint("Equal", 4, 8))
sketch15.addConstraint(Sketcher.Constraint("DistanceX", 1, 1, 1, 2, 6.0))
sketch15.addConstraint(Sketcher.Constraint("DistanceX", 5, 1, 5, 2, 7.0))
sketch15.addConstraint(Sketcher.Constraint("DistanceX", 3, 1, 3, 2, 3.2))
sketch15.addConstraint(Sketcher.Constraint("DistanceY", 0, 1, 0, 2, 4.2))
sketch15.addConstraint(Sketcher.Constraint("DistanceY", 2, 1, 2, 2, 1.4))
sketch15.addConstraint(Sketcher.Constraint("DistanceX", 0, 2, -1, 1, 130.0))
sketch15.addConstraint(Sketcher.Constraint("DistanceY", -1, 1, 0, 2, 77.292593))
pocket12 = body.newObject("PartDesign::Pocket", "Pocket011")
pocket12.Profile = sketch15
pocket12.Type = "ThroughAll"
pocket12.Reversed = True

doc.recompute()
